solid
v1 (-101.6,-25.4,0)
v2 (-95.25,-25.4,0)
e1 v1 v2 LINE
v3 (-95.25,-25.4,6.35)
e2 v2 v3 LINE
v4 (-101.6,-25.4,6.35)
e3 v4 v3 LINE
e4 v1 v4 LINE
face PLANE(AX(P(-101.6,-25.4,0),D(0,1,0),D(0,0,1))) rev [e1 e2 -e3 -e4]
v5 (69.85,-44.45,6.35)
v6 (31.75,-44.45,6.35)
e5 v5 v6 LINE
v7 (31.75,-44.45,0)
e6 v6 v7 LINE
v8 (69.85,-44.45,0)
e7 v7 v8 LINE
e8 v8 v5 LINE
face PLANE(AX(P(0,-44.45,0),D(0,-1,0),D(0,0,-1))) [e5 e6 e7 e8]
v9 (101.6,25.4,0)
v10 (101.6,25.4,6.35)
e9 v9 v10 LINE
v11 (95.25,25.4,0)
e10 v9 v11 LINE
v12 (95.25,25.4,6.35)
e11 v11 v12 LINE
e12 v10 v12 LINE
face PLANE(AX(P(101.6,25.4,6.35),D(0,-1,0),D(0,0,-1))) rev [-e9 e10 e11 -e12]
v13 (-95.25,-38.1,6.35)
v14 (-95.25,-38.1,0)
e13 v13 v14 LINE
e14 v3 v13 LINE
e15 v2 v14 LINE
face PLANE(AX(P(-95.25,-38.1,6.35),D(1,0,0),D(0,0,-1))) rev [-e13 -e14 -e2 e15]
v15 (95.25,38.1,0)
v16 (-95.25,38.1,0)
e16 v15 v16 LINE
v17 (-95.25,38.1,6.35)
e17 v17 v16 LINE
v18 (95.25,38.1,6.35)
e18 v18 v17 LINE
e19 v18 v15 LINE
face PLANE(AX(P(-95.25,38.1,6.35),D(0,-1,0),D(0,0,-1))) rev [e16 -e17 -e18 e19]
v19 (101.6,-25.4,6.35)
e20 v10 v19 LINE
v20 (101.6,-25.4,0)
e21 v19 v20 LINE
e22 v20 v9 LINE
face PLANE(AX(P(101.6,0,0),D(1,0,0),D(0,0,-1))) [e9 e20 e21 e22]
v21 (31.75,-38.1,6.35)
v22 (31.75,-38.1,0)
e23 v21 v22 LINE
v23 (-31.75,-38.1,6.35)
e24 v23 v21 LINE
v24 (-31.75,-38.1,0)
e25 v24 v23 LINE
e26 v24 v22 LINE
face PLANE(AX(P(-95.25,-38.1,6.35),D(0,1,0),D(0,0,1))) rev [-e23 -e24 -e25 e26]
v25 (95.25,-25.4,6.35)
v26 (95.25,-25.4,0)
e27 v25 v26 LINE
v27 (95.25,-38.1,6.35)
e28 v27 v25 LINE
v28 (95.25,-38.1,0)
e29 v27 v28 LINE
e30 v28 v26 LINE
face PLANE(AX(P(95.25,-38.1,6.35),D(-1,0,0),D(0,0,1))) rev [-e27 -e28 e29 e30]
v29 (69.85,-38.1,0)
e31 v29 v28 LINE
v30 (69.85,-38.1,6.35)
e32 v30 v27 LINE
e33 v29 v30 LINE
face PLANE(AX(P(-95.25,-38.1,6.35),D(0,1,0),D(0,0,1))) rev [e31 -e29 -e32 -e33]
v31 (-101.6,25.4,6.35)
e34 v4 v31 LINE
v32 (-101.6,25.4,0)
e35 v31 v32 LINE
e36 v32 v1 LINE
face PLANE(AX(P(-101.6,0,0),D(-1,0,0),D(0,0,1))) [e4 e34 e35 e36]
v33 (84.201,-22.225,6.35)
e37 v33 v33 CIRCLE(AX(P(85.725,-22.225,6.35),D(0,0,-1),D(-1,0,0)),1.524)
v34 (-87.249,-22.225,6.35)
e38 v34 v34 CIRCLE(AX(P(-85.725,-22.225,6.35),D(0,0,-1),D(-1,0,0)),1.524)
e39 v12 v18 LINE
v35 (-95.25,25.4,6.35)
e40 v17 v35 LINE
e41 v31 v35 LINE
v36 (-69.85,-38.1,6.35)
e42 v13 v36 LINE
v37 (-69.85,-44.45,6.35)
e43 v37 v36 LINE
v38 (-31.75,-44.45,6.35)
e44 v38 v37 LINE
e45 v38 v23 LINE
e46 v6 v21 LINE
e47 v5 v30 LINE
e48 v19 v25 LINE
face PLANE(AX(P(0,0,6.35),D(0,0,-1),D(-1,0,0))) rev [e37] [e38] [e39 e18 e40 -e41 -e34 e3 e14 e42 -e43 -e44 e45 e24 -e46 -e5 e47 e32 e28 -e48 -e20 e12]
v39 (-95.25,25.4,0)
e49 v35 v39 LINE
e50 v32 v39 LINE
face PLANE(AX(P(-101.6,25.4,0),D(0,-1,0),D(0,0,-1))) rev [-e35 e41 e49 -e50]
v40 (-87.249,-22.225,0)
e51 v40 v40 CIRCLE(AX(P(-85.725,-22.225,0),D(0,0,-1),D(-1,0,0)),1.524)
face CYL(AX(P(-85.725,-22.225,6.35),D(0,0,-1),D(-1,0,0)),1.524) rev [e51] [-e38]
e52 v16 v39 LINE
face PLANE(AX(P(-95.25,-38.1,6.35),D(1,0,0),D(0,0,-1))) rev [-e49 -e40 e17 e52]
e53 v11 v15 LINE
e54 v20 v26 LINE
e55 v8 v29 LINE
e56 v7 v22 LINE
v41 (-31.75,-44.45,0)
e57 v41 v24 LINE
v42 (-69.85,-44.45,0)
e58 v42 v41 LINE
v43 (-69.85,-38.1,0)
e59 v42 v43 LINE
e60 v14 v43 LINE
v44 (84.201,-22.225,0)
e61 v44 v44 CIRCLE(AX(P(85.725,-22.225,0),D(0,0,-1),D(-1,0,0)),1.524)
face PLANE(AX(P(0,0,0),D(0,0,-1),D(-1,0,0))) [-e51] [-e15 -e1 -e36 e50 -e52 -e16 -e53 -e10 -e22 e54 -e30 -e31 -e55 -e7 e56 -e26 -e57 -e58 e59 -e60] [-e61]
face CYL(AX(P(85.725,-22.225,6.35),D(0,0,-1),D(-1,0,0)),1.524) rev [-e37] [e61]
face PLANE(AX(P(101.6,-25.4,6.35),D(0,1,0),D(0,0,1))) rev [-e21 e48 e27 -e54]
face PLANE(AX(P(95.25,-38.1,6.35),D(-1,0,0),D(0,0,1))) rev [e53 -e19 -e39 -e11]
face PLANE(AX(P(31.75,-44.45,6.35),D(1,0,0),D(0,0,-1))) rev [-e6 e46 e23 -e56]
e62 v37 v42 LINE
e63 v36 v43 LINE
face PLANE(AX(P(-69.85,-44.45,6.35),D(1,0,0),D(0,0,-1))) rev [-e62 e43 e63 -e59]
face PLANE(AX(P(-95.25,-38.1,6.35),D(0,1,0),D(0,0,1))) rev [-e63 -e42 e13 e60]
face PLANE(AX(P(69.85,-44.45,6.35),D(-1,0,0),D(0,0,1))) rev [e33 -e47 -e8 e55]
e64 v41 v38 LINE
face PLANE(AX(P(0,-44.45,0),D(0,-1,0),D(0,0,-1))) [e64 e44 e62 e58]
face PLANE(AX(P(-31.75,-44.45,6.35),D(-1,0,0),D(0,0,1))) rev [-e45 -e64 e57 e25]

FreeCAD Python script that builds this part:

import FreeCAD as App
import Part
import Sketcher
Q = App.Units.Quantity

doc = App.newDocument("Part")
body = doc.addObject("PartDesign::Body", "Body")

sketch1 = body.newObject("Sketcher::SketchObject", "Sketch")
sketch1.AttachmentSupport = (doc.getObject("XY_Plane"), [""])
sketch1.MapMode = "FlatFace"
sketch1.addGeometry(Part.LineSegment(App.Vector(-95.25, 38.1, 0), App.Vector(-95.25, -38.1, 0)), False)
sketch1.addGeometry(Part.LineSegment(App.Vector(-95.25, -38.1, 0), App.Vector(95.25, -38.1, 0)), False)
sketch1.addGeometry(Part.LineSegment(App.Vector(95.25, -38.1, 0), App.Vector(95.25, 38.1, 0)), False)
sketch1.addGeometry(Part.LineSegment(App.Vector(95.25, 38.1, 0), App.Vector(-95.25, 38.1, 0)), False)
sketch1.addConstraint(Sketcher.Constraint("Coincident", 0, 2, 1, 1))
sketch1.addConstraint(Sketcher.Constraint("Coincident", 1, 2, 2, 1))
sketch1.addConstraint(Sketcher.Constraint("Coincident", 2, 2, 3, 1))
sketch1.addConstraint(Sketcher.Constraint("Coincident", 3, 2, 0, 1))
sketch1.addConstraint(Sketcher.Constraint("Vertical", 0))
sketch1.addConstraint(Sketcher.Constraint("Horizontal", 1))
sketch1.addConstraint(Sketcher.Constraint("Vertical", 2))
sketch1.addConstraint(Sketcher.Constraint("Horizontal", 3))
sketch1.addConstraint(Sketcher.Constraint("Symmetric", 0, 2, 2, 2, -1, 1))
sketch1.addConstraint(Sketcher.Constraint("DistanceY", 0, 2, 0, 1, Q("3 in")))
sketch1.addConstraint(Sketcher.Constraint("DistanceX", 1, 1, 1, 2, Q("7.5 in")))
pad1 = body.newObject("PartDesign::Pad", "Pad")
pad1.Profile = sketch1
pad1.Length = Q("0.25 in")

sketch2 = body.newObject("Sketcher::SketchObject", "Sketch001")
sketch2.AttachmentSupport = (doc.getObject("YZ_Plane"), [""])
sketch2.MapMode = "FlatFace"
sketch2.AttachmentOffset = App.Placement(App.Vector(0, 0, -3.75 * 25.4), App.Rotation())
sketch2.addGeometry(Part.LineSegment(App.Vector(25.4, 0, 0), App.Vector(-25.4, 0, 0)), False)
sketch2.addGeometry(Part.LineSegment(App.Vector(-25.4, 0, 0), App.Vector(-25.4, 6.35, 0)), False)
sketch2.addGeometry(Part.LineSegment(App.Vector(-25.4, 6.35, 0), App.Vector(25.4, 6.35, 0)), False)
sketch2.addGeometry(Part.LineSegment(App.Vector(25.4, 6.35, 0), App.Vector(25.4, 0, 0)), False)
sketch2.addConstraint(Sketcher.Constraint("Coincident", 0, 2, 1, 1))
sketch2.addConstraint(Sketcher.Constraint("Coincident", 1, 2, 2, 1))
sketch2.addConstraint(Sketcher.Constraint("Coincident", 2, 2, 3, 1))
sketch2.addConstraint(Sketcher.Constraint("Coincident", 3, 2, 0, 1))
sketch2.addConstraint(Sketcher.Constraint("Horizontal", 0))
sketch2.addConstraint(Sketcher.Constraint("Vertical", 1))
sketch2.addConstraint(Sketcher.Constraint("Horizontal", 2))
sketch2.addConstraint(Sketcher.Constraint("Vertical", 3))
sketch2.addConstraint(Sketcher.Constraint("Symmetric", 0, 2, 3, 2, -1, 1))
sketch2.addConstraint(Sketcher.Constraint("DistanceX", 0, 2, 0, 1, Q("2 in")))
sketch2.addConstraint(Sketcher.Constraint("DistanceY", 1, 1, 1, 2, Q("0.25 in")))
pad2 = body.newObject("PartDesign::Pad", "Pad001")
pad2.Profile = sketch2
pad2.Length = Q("0.25 in")
pad2.Reversed = True

sketch3 = body.newObject("Sketcher::SketchObject", "Sketch002")
sketch3.AttachmentSupport = (doc.getObject("YZ_Plane"), [""])
sketch3.MapMode = "FlatFace"
sketch3.AttachmentOffset = App.Placement(App.Vector(0, 0, 3.75 * 25.4), App.Rotation())
sketch3.addGeometry(Part.LineSegment(App.Vector(25.4, 6.35, 0), App.Vector(-25.4, 6.35, 0)), False)
sketch3.addGeometry(Part.LineSegment(App.Vector(-25.4, 6.35, 0), App.Vector(-25.4, 0, 0)), False)
sketch3.addGeometry(Part.LineSegment(App.Vector(-25.4, 0, 0), App.Vector(25.4, 0, 0)), False)
sketch3.addGeometry(Part.LineSegment(App.Vector(25.4, 0, 0), App.Vector(25.4, 6.35, 0)), False)
sketch3.addConstraint(Sketcher.Constraint("Coincident", 0, 2, 1, 1))
sketch3.addConstraint(Sketcher.Constraint("Coincident", 1, 2, 2, 1))
sketch3.addConstraint(Sketcher.Constraint("Coincident", 2, 2, 3, 1))
sketch3.addConstraint(Sketcher.Constraint("Coincident", 3, 2, 0, 1))
sketch3.addConstraint(Sketcher.Constraint("Horizontal", 0))
sketch3.addConstraint(Sketcher.Constraint("Vertical", 1))
sketch3.addConstraint(Sketcher.Constraint("Horizontal", 2))
sketch3.addConstraint(Sketcher.Constraint("Vertical", 3))
sketch3.addConstraint(Sketcher.Constraint("Symmetric", 1, 2, 2, 2, -1, 1))
sketch3.addConstraint(Sketcher.Constraint("DistanceX", 0, 2, 0, 1, Q("2 in")))
sketch3.addConstraint(Sketcher.Constraint("DistanceY", 1, 2, 1, 1, Q("0.25 in")))
pad3 = body.newObject("PartDesign::Pad", "Pad002")
pad3.Profile = sketch3
pad3.Length = Q("0.25 in")

sketch4 = body.newObject("Sketcher::SketchObject", "Sketch003")
sketch4.AttachmentSupport = (doc.getObject("XZ_Plane"), [""])
sketch4.MapMode = "FlatFace"
sketch4.AttachmentOffset = App.Placement(App.Vector(0, 0, 1.5 * 25.4), App.Rotation())
sketch4.addGeometry(Part.LineSegment(App.Vector(-69.85, 6.35, 0), App.Vector(-69.85, 0, 0)), False)
sketch4.addGeometry(Part.LineSegment(App.Vector(-69.85, 0, 0), App.Vector(-31.75, 0, 0)), False)
sketch4.addGeometry(Part.LineSegment(App.Vector(-31.75, 0, 0), App.Vector(-31.75, 6.35, 0)), False)
sketch4.addGeometry(Part.LineSegment(App.Vector(-31.75, 6.35, 0), App.Vector(-69.85, 6.35, 0)), False)
sketch4.addGeometry(Part.LineSegment(App.Vector(31.75, 6.35, 0), App.Vector(31.75, 0, 0)), False)
sketch4.addGeometry(Part.LineSegment(App.Vector(31.75, 0, 0), App.Vector(69.85, 0, 0)), False)
sketch4.addGeometry(Part.LineSegment(App.Vector(69.85, 0, 0), App.Vector(69.85, 6.35, 0)), False)
sketch4.addGeometry(Part.LineSegment(App.Vector(69.85, 6.35, 0), App.Vector(31.75, 6.35, 0)), False)
sketch4.addConstraint(Sketcher.Constraint("Coincident", 0, 2, 1, 1))
sketch4.addConstraint(Sketcher.Constraint("Coincident", 1, 2, 2, 1))
sketch4.addConstraint(Sketcher.Constraint("Coincident", 2, 2, 3, 1))
sketch4.addConstraint(Sketcher.Constraint("Coincident", 3, 2, 0, 1))
sketch4.addConstraint(Sketcher.Constraint("Coincident", 4, 2, 5, 1))
sketch4.addConstraint(Sketcher.Constraint("Coincident", 5, 2, 6, 1))
sketch4.addConstraint(Sketcher.Constraint("Coincident", 6, 2, 7, 1))
sketch4.addConstraint(Sketcher.Constraint("Coincident", 7, 2, 4, 1))
sketch4.addConstraint(Sketcher.Constraint("Vertical", 0))
sketch4.addConstraint(Sketcher.Constraint("Horizontal", 1))
sketch4.addConstraint(Sketcher.Constraint("Vertical", 2))
sketch4.addConstraint(Sketcher.Constraint("Horizontal", 3))
sketch4.addConstraint(Sketcher.Constraint("Vertical", 4))
sketch4.addConstraint(Sketcher.Constraint("Horizontal", 5))
sketch4.addConstraint(Sketcher.Constraint("Vertical", 6))
sketch4.addConstraint(Sketcher.Constraint("Horizontal", 7))
sketch4.addConstraint(Sketcher.Constraint("Symmetric", 1, 2, 4, 2, -1, 1))
sketch4.addConstraint(Sketcher.Constraint("Symmetric", 0, 2, 5, 2, -2))
sketch4.addConstraint(Sketcher.Constraint("Horizontal", 3, 2, 6, 2))
sketch4.addConstraint(Sketcher.Constraint("DistanceX", 1, 1, 1, 2, Q("1.5 in")))
sketch4.addConstraint(Sketcher.Constraint("DistanceX", 0, 2, 4, 2, Q("4 in")))
sketch4.addConstraint(Sketcher.Constraint("DistanceY", 0, 2, 0, 1, Q("0.25 in")))
pad4 = body.newObject("PartDesign::Pad", "Pad003")
pad4.Profile = sketch4
pad4.Length = Q("0.25 in")

sketch5 = body.newObject("Sketcher::SketchObject", "Sketch004")
sketch5.AttachmentSupport = (doc.getObject("XY_Plane"), [""])
sketch5.MapMode = "FlatFace"
sketch5.addGeometry(Part.Circle(App.Vector(85.725, -22.225, 0), App.Vector(0, 0, 1), 1.524), False)
sketch5.addGeometry(Part.Circle(App.Vector(-85.725, -22.225, 0), App.Vector(0, 0, 1), 1.524), False)
sketch5.addConstraint(Sketcher.Constraint("Equal", 0, 1))
sketch5.addConstraint(Sketcher.Constraint("Symmetric", 0, 3, 1, 3, -2))
sketch5.addConstraint(Sketcher.Constraint("Diameter", 0, Q("0.12 in")))
sketch5.addConstraint(Sketcher.Constraint("DistanceX", 1, 3, 0, 3, Q("6.75 in")))
sketch5.addConstraint(Sketcher.Constraint("DistanceY", 0, 3, -1, 1, Q("0.875 in")))
pocket1 = body.newObject("PartDesign::Pocket", "Pocket")
pocket1.Profile = sketch5
pocket1.Length = Q("0.25 in")
pocket1.Reversed = True

doc.recompute()
